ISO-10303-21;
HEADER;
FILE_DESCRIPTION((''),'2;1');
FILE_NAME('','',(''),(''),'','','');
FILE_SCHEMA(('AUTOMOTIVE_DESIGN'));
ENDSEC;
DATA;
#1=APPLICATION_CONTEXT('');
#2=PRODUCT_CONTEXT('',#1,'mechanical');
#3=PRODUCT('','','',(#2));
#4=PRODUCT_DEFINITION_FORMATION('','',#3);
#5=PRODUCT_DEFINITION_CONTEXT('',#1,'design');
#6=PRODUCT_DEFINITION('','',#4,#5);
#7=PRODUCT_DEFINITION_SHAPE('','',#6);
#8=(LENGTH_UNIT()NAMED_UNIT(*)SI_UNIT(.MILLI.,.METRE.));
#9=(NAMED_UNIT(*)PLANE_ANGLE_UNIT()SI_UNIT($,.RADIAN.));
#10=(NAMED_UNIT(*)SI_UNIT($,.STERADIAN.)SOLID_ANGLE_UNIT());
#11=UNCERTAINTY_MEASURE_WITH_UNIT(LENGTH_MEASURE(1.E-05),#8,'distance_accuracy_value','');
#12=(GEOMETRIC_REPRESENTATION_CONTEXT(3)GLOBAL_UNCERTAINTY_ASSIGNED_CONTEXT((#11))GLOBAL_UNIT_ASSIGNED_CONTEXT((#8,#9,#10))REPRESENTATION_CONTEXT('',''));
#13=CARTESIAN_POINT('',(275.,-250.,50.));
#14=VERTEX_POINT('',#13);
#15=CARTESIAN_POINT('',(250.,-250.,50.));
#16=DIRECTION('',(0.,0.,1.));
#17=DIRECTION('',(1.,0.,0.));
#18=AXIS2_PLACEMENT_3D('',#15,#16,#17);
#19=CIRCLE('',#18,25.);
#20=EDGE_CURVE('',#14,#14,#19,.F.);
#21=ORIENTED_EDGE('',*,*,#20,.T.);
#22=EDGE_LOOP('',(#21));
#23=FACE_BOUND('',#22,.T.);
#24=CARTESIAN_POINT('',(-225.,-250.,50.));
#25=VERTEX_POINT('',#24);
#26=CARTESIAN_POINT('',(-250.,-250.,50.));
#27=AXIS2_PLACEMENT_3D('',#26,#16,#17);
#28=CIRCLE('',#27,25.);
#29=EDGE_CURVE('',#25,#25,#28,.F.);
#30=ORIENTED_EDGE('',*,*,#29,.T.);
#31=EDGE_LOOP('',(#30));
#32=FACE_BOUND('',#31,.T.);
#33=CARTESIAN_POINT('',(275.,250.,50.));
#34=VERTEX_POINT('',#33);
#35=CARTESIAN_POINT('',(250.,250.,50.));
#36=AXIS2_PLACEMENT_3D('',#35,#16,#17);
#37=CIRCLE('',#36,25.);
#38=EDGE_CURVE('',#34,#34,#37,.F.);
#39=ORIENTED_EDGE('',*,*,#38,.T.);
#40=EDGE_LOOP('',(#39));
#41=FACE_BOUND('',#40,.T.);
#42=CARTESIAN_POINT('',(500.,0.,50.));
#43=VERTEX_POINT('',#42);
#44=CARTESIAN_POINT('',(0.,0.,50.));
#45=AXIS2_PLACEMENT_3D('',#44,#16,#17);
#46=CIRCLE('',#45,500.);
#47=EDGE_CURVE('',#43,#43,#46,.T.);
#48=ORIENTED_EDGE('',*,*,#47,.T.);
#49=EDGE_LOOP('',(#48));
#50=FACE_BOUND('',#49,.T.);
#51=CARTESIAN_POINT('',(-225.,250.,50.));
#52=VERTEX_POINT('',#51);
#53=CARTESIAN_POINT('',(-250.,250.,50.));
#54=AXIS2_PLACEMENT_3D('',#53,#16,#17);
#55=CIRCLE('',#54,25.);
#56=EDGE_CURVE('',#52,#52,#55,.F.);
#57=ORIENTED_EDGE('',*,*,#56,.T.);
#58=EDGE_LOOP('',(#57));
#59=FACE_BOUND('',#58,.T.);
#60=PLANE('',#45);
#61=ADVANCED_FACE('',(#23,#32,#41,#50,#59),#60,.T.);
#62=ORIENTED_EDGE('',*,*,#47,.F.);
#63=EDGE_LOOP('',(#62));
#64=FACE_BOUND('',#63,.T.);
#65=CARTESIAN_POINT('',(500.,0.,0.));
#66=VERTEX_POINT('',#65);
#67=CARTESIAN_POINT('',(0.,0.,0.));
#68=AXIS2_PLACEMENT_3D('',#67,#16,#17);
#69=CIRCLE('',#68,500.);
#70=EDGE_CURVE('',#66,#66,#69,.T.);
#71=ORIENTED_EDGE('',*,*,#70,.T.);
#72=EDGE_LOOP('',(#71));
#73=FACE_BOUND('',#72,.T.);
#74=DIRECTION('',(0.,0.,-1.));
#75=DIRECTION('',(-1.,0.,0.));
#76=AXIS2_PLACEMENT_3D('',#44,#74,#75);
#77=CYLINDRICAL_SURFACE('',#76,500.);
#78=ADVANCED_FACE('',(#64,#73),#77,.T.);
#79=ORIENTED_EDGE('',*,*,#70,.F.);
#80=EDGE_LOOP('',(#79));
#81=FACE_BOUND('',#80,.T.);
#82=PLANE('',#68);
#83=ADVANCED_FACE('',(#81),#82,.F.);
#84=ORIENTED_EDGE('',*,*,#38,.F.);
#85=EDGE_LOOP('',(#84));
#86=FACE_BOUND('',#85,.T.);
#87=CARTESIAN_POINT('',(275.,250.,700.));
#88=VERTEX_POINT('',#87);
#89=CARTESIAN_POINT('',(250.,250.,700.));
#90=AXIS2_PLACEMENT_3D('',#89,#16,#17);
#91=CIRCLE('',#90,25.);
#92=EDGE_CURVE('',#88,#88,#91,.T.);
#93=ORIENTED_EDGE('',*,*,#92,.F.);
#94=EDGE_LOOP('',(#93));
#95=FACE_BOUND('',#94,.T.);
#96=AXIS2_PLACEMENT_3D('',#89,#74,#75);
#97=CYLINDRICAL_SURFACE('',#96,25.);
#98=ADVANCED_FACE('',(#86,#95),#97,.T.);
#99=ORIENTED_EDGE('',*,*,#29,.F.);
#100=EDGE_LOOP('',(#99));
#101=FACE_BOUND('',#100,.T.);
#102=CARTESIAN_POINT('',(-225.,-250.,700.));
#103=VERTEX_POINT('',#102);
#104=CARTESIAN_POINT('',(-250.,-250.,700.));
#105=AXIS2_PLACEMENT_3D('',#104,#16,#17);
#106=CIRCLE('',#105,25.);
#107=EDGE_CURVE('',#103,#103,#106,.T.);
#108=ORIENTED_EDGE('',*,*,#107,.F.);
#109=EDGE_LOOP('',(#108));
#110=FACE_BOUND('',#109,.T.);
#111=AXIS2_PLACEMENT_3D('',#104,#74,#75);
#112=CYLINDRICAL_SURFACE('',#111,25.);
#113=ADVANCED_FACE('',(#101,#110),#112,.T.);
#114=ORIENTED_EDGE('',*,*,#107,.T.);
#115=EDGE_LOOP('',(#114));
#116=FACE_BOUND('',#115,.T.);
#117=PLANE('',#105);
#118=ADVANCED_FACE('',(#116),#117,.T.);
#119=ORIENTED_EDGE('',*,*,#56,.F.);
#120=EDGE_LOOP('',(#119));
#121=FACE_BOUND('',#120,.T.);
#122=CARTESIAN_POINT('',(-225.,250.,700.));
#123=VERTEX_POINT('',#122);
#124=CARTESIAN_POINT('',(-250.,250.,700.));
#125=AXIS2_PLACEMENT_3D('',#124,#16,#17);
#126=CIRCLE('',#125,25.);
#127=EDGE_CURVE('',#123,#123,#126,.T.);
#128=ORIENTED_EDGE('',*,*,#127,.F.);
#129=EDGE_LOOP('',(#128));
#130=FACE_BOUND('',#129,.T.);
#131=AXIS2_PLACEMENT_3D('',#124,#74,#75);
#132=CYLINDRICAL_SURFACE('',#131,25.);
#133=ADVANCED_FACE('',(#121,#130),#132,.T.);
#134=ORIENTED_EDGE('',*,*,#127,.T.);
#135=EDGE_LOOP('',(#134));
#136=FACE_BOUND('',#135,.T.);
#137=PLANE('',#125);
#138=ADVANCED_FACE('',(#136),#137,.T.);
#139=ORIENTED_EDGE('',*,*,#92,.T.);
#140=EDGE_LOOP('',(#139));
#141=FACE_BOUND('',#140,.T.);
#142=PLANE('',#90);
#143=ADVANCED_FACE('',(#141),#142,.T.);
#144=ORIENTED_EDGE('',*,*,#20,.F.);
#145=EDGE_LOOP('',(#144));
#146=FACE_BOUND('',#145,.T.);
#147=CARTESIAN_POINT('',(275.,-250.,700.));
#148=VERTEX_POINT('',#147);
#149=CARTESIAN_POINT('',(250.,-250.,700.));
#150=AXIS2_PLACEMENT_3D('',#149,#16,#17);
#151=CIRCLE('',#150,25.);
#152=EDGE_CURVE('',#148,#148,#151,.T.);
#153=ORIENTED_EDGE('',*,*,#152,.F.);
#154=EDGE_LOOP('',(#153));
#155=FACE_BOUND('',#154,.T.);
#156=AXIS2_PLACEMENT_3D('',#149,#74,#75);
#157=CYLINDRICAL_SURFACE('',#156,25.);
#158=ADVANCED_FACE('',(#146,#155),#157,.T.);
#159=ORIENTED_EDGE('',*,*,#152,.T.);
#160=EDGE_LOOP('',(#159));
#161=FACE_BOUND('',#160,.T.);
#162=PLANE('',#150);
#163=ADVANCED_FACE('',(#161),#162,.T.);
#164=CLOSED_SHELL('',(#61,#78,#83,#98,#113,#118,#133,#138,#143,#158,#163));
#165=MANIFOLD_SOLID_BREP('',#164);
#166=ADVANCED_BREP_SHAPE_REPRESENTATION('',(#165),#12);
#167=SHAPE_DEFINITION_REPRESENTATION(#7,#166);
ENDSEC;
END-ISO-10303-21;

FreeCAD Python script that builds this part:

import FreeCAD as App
import Part
import Sketcher
from FreeCAD import Vector
Q = App.Units.Quantity

doc = App.newDocument("Part")
body = doc.addObject("PartDesign::Body", "Body")

# Sketch on XY plane
sketch1 = body.newObject("Sketcher::SketchObject", "Sketch")
sketch1.AttachmentSupport = (doc.getObject("XY_Plane"), [""])
sketch1.MapMode = "FlatFace"
sketch1.addGeometry(Part.Circle(Vector(0, 0, 0), Vector(0, 0, 1), 500), False)
sketch1.addConstraint([
    Sketcher.Constraint("Coincident", 0, 3, -1, 1),
    Sketcher.Constraint("Diameter", 0, Q("1000 mm")),
])
pad1 = body.newObject("PartDesign::Pad", "Pad")
pad1.Profile = sketch1
pad1.Length = 50

# Sketch on XY plane
sketch2 = body.newObject("Sketcher::SketchObject", "Sketch001")
sketch2.AttachmentSupport = (doc.getObject("XY_Plane"), [""])
sketch2.MapMode = "FlatFace"
sketch2.addGeometry(Part.Circle(Vector(250, 250, 0), Vector(0, 0, 1), 25), False)
sketch2.addConstraint([
    Sketcher.Constraint("Diameter", 0, Q("50 mm")),
    Sketcher.Constraint("DistanceX", -1, 1, 0, 3, Q("250 mm")),
    Sketcher.Constraint("DistanceY", -1, 1, 0, 3, Q("250 mm")),
])
pad2 = body.newObject("PartDesign::Pad", "Pad001")
pad2.Profile = sketch2
pad2.Length = 700

# Sketch on XY plane
sketch3 = body.newObject("Sketcher::SketchObject", "Sketch002")
sketch3.AttachmentSupport = (doc.getObject("XY_Plane"), [""])
sketch3.MapMode = "FlatFace"
sketch3.addGeometry(Part.Circle(Vector(-250, 250, 0), Vector(0, 0, 1), 25), False)
sketch3.addConstraint([
    Sketcher.Constraint("Diameter", 0, Q("50 mm")),
    Sketcher.Constraint("DistanceX", 0, 3, -1, 1, Q("250 mm")),
    Sketcher.Constraint("DistanceY", -1, 1, 0, 3, Q("250 mm")),
])
pad3 = body.newObject("PartDesign::Pad", "Pad002")
pad3.Profile = sketch3
pad3.Length = 700

# Sketch on XY plane
sketch4 = body.newObject("Sketcher::SketchObject", "Sketch003")
sketch4.AttachmentSupport = (doc.getObject("XY_Plane"), [""])
sketch4.MapMode = "FlatFace"
sketch4.addGeometry(Part.Circle(Vector(250, -250, 0), Vector(0, 0, 1), 25), False)
sketch4.addConstraint([
    Sketcher.Constraint("Diameter", 0, Q("50 mm")),
    Sketcher.Constraint("DistanceX", -1, 1, 0, 3, Q("250 mm")),
    Sketcher.Constraint("DistanceY", 0, 3, -1, 1, Q("250 mm")),
])
pad4 = body.newObject("PartDesign::Pad", "Pad003")
pad4.Profile = sketch4
pad4.Length = 700

# Sketch on XY plane
sketch5 = body.newObject("Sketcher::SketchObject", "Sketch004")
sketch5.AttachmentSupport = (doc.getObject("XY_Plane"), [""])
sketch5.MapMode = "FlatFace"
sketch5.addGeometry(Part.Circle(Vector(-250, -250, 0), Vector(0, 0, 1), 25), False)
sketch5.addConstraint([
    Sketcher.Constraint("Diameter", 0, Q("50 mm")),
    Sketcher.Constraint("DistanceX", 0, 3, -1, 1, Q("250 mm")),
    Sketcher.Constraint("DistanceY", 0, 3, -1, 1, Q("250 mm")),
])
pad5 = body.newObject("PartDesign::Pad", "Pad004")
pad5.Profile = sketch5
pad5.Length = 700

doc.recompute()
